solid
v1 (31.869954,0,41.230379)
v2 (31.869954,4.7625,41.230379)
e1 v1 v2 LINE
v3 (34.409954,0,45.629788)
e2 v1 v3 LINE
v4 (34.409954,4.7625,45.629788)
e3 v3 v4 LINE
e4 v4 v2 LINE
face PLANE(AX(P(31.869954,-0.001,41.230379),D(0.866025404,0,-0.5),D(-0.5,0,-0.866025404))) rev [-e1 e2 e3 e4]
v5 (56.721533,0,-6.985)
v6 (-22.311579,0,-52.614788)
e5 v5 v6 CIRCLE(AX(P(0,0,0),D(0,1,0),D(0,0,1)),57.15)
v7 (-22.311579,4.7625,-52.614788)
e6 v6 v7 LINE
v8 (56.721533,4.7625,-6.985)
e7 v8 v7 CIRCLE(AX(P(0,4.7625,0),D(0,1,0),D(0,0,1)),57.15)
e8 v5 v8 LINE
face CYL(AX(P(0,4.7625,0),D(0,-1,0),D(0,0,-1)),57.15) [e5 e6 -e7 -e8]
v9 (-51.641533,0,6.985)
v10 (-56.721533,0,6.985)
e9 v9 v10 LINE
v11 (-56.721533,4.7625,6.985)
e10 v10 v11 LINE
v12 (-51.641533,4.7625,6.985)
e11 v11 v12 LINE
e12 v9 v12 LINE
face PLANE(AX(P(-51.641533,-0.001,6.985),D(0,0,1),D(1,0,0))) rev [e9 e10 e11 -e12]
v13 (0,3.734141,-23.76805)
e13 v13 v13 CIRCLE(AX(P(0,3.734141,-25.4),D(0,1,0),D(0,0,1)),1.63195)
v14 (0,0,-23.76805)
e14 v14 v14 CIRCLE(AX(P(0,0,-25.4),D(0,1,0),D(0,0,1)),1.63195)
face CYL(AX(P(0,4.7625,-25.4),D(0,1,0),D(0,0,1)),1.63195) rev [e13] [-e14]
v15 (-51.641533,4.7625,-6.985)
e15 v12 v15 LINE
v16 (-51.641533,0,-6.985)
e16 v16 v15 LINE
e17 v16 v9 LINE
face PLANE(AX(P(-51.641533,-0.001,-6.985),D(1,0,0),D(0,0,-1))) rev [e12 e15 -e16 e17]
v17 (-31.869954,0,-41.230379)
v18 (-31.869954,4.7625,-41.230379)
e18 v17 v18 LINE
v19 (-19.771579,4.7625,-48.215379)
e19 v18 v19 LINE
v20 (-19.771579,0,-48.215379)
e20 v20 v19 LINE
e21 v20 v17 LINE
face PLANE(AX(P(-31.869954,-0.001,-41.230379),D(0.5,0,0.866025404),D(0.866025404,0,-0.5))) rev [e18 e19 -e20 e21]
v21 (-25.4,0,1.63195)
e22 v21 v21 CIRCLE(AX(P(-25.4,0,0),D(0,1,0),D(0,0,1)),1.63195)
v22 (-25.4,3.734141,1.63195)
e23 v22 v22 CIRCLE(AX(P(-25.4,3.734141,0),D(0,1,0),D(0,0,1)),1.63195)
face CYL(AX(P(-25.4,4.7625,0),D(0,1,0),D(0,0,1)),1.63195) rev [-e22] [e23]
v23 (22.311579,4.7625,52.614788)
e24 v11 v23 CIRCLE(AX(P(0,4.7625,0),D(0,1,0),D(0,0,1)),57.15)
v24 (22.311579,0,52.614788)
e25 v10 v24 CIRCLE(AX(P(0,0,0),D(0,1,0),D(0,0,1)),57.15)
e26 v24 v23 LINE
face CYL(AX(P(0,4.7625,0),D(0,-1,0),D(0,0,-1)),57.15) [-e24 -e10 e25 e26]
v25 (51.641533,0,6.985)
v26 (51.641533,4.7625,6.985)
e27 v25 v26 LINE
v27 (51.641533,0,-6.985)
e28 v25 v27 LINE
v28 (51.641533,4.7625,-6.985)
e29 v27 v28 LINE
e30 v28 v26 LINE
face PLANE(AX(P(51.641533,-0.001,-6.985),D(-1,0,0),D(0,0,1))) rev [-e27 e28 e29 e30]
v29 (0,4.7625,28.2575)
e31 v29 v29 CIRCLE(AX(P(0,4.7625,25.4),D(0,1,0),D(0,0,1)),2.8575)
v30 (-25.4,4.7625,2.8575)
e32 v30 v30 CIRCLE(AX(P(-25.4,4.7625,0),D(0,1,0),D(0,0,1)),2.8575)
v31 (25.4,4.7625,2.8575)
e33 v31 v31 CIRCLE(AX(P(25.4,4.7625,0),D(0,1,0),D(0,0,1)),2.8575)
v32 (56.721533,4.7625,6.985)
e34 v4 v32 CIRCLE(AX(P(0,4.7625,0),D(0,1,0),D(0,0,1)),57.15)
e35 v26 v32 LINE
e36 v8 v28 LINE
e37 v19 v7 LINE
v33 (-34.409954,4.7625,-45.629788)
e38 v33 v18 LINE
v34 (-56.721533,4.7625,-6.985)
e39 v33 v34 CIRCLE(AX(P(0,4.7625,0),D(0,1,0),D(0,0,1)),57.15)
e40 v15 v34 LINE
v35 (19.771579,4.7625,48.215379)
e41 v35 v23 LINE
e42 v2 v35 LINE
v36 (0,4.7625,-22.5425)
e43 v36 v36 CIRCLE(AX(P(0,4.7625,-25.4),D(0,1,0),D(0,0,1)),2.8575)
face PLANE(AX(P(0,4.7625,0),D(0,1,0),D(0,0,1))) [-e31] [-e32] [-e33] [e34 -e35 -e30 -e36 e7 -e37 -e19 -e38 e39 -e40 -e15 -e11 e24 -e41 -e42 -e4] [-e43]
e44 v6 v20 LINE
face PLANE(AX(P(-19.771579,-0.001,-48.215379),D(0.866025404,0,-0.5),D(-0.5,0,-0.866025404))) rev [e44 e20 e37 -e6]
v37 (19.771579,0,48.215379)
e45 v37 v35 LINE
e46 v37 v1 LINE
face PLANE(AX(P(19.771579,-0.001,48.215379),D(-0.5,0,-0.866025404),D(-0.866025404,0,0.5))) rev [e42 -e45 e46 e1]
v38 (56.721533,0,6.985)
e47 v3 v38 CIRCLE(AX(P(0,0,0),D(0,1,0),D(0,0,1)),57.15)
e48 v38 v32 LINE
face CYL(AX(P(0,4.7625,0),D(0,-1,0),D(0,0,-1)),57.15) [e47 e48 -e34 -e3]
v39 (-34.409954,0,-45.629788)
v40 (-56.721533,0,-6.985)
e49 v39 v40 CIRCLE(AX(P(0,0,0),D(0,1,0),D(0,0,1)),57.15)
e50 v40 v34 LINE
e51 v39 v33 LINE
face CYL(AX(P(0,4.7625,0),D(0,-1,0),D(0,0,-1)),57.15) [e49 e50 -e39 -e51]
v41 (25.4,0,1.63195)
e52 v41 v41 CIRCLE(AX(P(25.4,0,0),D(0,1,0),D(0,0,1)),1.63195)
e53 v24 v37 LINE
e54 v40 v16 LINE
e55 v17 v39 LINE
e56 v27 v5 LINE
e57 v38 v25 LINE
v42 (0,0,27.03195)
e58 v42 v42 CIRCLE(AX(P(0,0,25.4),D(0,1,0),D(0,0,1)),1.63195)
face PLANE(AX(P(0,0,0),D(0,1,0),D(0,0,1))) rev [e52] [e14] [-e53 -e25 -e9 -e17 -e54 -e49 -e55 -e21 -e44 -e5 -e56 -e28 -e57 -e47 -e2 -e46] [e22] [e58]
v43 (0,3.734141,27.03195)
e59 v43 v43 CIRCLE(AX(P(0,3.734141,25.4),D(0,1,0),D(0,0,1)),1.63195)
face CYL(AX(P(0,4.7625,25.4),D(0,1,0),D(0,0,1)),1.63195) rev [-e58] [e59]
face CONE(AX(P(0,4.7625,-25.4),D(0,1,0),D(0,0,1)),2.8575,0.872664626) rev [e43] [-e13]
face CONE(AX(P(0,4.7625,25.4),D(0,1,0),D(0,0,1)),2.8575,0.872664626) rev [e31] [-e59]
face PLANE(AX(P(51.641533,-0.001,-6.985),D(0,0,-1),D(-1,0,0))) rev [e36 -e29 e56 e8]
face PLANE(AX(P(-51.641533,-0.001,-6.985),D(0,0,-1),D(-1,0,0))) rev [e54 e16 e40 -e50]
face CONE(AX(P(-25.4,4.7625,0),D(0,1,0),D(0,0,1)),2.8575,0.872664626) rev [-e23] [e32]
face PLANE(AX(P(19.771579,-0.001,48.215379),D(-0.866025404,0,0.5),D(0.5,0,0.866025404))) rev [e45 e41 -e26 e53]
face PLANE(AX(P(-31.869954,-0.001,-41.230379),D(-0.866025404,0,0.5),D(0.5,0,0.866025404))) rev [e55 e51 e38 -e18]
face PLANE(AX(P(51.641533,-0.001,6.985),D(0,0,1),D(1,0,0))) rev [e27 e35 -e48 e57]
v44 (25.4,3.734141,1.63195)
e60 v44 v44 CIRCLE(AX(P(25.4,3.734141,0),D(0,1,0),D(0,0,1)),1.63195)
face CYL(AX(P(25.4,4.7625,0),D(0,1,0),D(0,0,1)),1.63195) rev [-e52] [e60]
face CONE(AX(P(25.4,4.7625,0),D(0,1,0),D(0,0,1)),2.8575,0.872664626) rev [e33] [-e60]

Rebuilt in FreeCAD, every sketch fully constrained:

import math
import FreeCAD as App
import Part
import Sketcher
from FreeCAD import Vector
Q = App.Units.Quantity

doc = App.newDocument("Part")
body = doc.addObject("PartDesign::Body", "Body")

# Sketch on XZ plane
sketch1 = doc.addObject("Sketcher::SketchObject", "Sketch")
body.addObject(sketch1)
sketch1.AttachmentSupport = (doc.XZ_Plane, [""])
sketch1.MapMode = "FlatFace"
sketch1.addGeometry(Part.Circle(Vector(0, 0, 0), Vector(0, 0, 1), 57.15), False)
sketch1.addConstraint([
    Sketcher.Constraint("Coincident", 0, 3, -1, 1),
    Sketcher.Constraint("Diameter", 0, Q("4.5 in")),
])
pad1 = doc.addObject("PartDesign::Pad", "Pad")
body.addObject(pad1)
pad1.Profile = sketch1
pad1.Length = Q("0.1875 in")
pad1.Reversed = True

# Sketch on XZ plane
sketch2 = doc.addObject("Sketcher::SketchObject", "Sketch001")
body.addObject(sketch2)
sketch2.AttachmentSupport = (doc.XZ_Plane, [""])
sketch2.MapMode = "FlatFace"
sketch2.AttachmentOffset = App.Placement(Vector(0, 0, -0.1875 * 25.4), App.Rotation())
sketch2.addGeometry([
    Part.LineSegment(Vector(51.641533, -6.985, 0), Vector(51.641533, 6.985, 0)),
    Part.LineSegment(Vector(51.641533, 6.985, 0), Vector(56.721533, 6.985, 0)),
    Part.ArcOfCircle(Part.Circle(Vector(0, 0, 0), Vector(0, 0, 1), 57.15), math.radians(-7.020371), math.radians(7.020371)),
    Part.LineSegment(Vector(56.721533, -6.985, 0), Vector(51.641533, -6.985, 0)),
], False)
sketch2.addConstraint([
    Sketcher.Constraint("Coincident", 0, 2, 1, 1),
    Sketcher.Constraint("Coincident", 1, 2, 2, 2),
    Sketcher.Constraint("Coincident", 2, 1, 3, 1),
    Sketcher.Constraint("Coincident", 3, 2, 0, 1),
    Sketcher.Constraint("Vertical", 0),
    Sketcher.Constraint("Horizontal", 1),
    Sketcher.Constraint("Horizontal", 3),
    Sketcher.Constraint("Coincident", 2, 3, -1, 1),
    Sketcher.Constraint("Vertical", 1, 2, 2, 1),
    Sketcher.Constraint("Radius", 2, Q("2.25 in")),
    Sketcher.Constraint("DistanceX", 1, 1, 1, 2, Q("0.2 in")),
    Sketcher.Constraint("DistanceY", 0, 1, 0, 2, Q("0.55 in")),
])
pocket1 = doc.addObject("PartDesign::Pocket", "Pocket")
body.addObject(pocket1)
pocket1.Profile = sketch2
pocket1.Type = "UpToFirst"
pocket1.Reversed = True

# Sketch on XZ plane
sketch3 = doc.addObject("Sketcher::SketchObject", "Sketch002")
body.addObject(sketch3)
sketch3.AttachmentSupport = (doc.XZ_Plane, [""])
sketch3.MapMode = "FlatFace"
sketch3.AttachmentOffset = App.Placement(Vector(0, 0, -0.1875 * 25.4), App.Rotation())
sketch3.addGeometry([
    Part.LineSegment(Vector(-51.641533, -6.985, 0), Vector(-56.721533, -6.985, 0)),
    Part.ArcOfCircle(Part.Circle(Vector(0, 0, 0), Vector(0, 0, 1), 57.15), math.radians(172.979629), math.radians(187.020371)),
    Part.LineSegment(Vector(-56.721533, 6.985, 0), Vector(-51.641533, 6.985, 0)),
    Part.LineSegment(Vector(-51.641533, 6.985, 0), Vector(-51.641533, -6.985, 0)),
], False)
sketch3.addConstraint([
    Sketcher.Constraint("Coincident", 0, 2, 1, 2),
    Sketcher.Constraint("Coincident", 1, 1, 2, 1),
    Sketcher.Constraint("Coincident", 2, 2, 3, 1),
    Sketcher.Constraint("Coincident", 3, 2, 0, 1),
    Sketcher.Constraint("Horizontal", 0),
    Sketcher.Constraint("Horizontal", 2),
    Sketcher.Constraint("Vertical", 3),
    Sketcher.Constraint("Coincident", 1, 3, -1, 1),
    Sketcher.Constraint("Vertical", 0, 2, 1, 1),
    Sketcher.Constraint("Radius", 1, Q("2.25 in")),
    Sketcher.Constraint("DistanceX", 0, 2, 0, 1, Q("0.2 in")),
    Sketcher.Constraint("DistanceY", 3, 2, 3, 1, Q("0.55 in")),
])
pocket2 = doc.addObject("PartDesign::Pocket", "Pocket001")
body.addObject(pocket2)
pocket2.Profile = sketch3
pocket2.Type = "UpToFirst"
pocket2.Reversed = True

# Sketch on XZ plane
sketch4 = doc.addObject("Sketcher::SketchObject", "Sketch003")
body.addObject(sketch4)
sketch4.AttachmentSupport = (doc.XZ_Plane, [""])
sketch4.MapMode = "FlatFace"
sketch4.AttachmentOffset = App.Placement(Vector(0, 0, -0.1875 * 25.4), App.Rotation())
sketch4.addGeometry([
    Part.LineSegment(Vector(31.869954, 41.230379, 0), Vector(19.771579, 48.215379, 0)),
    Part.LineSegment(Vector(19.771579, 48.215379, 0), Vector(22.311579, 52.614788, 0)),
    Part.ArcOfCircle(Part.Circle(Vector(0, 0, 0), Vector(0, 0, 1), 57.15), math.radians(52.979629), math.radians(67.020371)),
    Part.LineSegment(Vector(34.409954, 45.629788, 0), Vector(31.869954, 41.230379, 0)),
], False)
sketch4.addConstraint([
    Sketcher.Constraint("Coincident", 0, 2, 1, 1),
    Sketcher.Constraint("Coincident", 1, 2, 2, 2),
    Sketcher.Constraint("Coincident", 2, 1, 3, 1),
    Sketcher.Constraint("Coincident", 3, 2, 0, 1),
    Sketcher.Constraint("Coincident", 2, 3, -1, 1),
    Sketcher.Constraint("Perpendicular", 0, 1),
    Sketcher.Constraint("Parallel", 1, 3),
    Sketcher.Constraint("Equal", 1, 3),
    Sketcher.Constraint("Radius", 2, Q("2.25 in")),
    Sketcher.Constraint("Angle", 0, Q("150 deg")),
    Sketcher.Constraint("Distance", 1, Q("0.2 in")),
    Sketcher.Constraint("Distance", 0, Q("0.55 in")),
])
pocket3 = doc.addObject("PartDesign::Pocket", "Pocket002")
body.addObject(pocket3)
pocket3.Profile = sketch4
pocket3.Type = "UpToFirst"
pocket3.Reversed = True

# Sketch on XZ plane
sketch5 = doc.addObject("Sketcher::SketchObject", "Sketch004")
body.addObject(sketch5)
sketch5.AttachmentSupport = (doc.XZ_Plane, [""])
sketch5.MapMode = "FlatFace"
sketch5.AttachmentOffset = App.Placement(Vector(0, 0, -0.1875 * 25.4), App.Rotation())
sketch5.addGeometry([
    Part.LineSegment(Vector(-34.409954, -45.629788, 0), Vector(-31.869954, -41.230379, 0)),
    Part.LineSegment(Vector(-31.869954, -41.230379, 0), Vector(-19.771579, -48.215379, 0)),
    Part.LineSegment(Vector(-19.771579, -48.215379, 0), Vector(-22.311579, -52.614788, 0)),
    Part.ArcOfCircle(Part.Circle(Vector(0, 0, 0), Vector(0, 0, 1), 57.15), math.radians(-127.020371), math.radians(-112.979629)),
], False)
sketch5.addConstraint([
    Sketcher.Constraint("Coincident", 0, 2, 1, 1),
    Sketcher.Constraint("Coincident", 1, 2, 2, 1),
    Sketcher.Constraint("Coincident", 2, 2, 3, 2),
    Sketcher.Constraint("Coincident", 3, 1, 0, 1),
    Sketcher.Constraint("Coincident", 3, 3, -1, 1),
    Sketcher.Constraint("Perpendicular", 0, 1),
    Sketcher.Constraint("Perpendicular", 1, 2),
    Sketcher.Constraint("Equal", 0, 2),
    Sketcher.Constraint("Radius", 3, Q("2.25 in")),
    Sketcher.Constraint("Angle", 0, Q("60 deg")),
    Sketcher.Constraint("Distance", 0, Q("0.2 in")),
    Sketcher.Constraint("Distance", 1, Q("0.55 in")),
])
pocket4 = doc.addObject("PartDesign::Pocket", "Pocket003")
body.addObject(pocket4)
pocket4.Profile = sketch5
pocket4.Type = "UpToFirst"
pocket4.Reversed = True

# Sketch on XZ plane
sketch6 = doc.addObject("Sketcher::SketchObject", "Sketch005")
body.addObject(sketch6)
sketch6.AttachmentSupport = (doc.XZ_Plane, [""])
sketch6.MapMode = "FlatFace"
sketch6.AttachmentOffset = App.Placement(Vector(0, 0, -0.1875 * 25.4), App.Rotation())
sketch6.addGeometry([
    Part.Circle(Vector(25.4, 0, 0), Vector(0, 0, 1), 1.63195),
    Part.Circle(Vector(0, 25.4, 0), Vector(0, 0, 1), 1.63195),
    Part.Circle(Vector(0, -25.4, 0), Vector(0, 0, 1), 1.63195),
    Part.Circle(Vector(-25.4, 0, 0), Vector(0, 0, 1), 1.63195),
], False)
sketch6.addConstraint([
    Sketcher.Constraint("Equal", 0, 1),
    Sketcher.Constraint("Equal", 1, 2),
    Sketcher.Constraint("Equal", 2, 3),
    Sketcher.Constraint("Symmetric", 1, 3, 2, 3, -1, 1),
    Sketcher.Constraint("Symmetric", 0, 3, 3, 3, -1, 1),
    Sketcher.Constraint("PointOnObject", 0, 3, -1),
    Sketcher.Constraint("PointOnObject", 1, 3, -2),
    Sketcher.Constraint("DistanceX", -1, 1, 0, 3, Q("1 in")),
    Sketcher.Constraint("DistanceY", -1, 1, 1, 3, Q("1 in")),
    Sketcher.Constraint("Diameter", 0, Q("0.1285 in")),
])
doc.recompute()
hole = doc.addObject("PartDesign::Hole", "Hole")
body.addObject(hole)
hole.Profile = sketch6
hole.ThreadType = "None"
hole.Diameter = Q("0.1285 in")
hole.DepthType = "ThroughAll"
hole.HoleCutType = "Countersink"
hole.HoleCutDiameter = Q("0.225 in")
hole.HoleCutCountersinkAngle = 100
hole.Reversed = True

doc.recompute()
